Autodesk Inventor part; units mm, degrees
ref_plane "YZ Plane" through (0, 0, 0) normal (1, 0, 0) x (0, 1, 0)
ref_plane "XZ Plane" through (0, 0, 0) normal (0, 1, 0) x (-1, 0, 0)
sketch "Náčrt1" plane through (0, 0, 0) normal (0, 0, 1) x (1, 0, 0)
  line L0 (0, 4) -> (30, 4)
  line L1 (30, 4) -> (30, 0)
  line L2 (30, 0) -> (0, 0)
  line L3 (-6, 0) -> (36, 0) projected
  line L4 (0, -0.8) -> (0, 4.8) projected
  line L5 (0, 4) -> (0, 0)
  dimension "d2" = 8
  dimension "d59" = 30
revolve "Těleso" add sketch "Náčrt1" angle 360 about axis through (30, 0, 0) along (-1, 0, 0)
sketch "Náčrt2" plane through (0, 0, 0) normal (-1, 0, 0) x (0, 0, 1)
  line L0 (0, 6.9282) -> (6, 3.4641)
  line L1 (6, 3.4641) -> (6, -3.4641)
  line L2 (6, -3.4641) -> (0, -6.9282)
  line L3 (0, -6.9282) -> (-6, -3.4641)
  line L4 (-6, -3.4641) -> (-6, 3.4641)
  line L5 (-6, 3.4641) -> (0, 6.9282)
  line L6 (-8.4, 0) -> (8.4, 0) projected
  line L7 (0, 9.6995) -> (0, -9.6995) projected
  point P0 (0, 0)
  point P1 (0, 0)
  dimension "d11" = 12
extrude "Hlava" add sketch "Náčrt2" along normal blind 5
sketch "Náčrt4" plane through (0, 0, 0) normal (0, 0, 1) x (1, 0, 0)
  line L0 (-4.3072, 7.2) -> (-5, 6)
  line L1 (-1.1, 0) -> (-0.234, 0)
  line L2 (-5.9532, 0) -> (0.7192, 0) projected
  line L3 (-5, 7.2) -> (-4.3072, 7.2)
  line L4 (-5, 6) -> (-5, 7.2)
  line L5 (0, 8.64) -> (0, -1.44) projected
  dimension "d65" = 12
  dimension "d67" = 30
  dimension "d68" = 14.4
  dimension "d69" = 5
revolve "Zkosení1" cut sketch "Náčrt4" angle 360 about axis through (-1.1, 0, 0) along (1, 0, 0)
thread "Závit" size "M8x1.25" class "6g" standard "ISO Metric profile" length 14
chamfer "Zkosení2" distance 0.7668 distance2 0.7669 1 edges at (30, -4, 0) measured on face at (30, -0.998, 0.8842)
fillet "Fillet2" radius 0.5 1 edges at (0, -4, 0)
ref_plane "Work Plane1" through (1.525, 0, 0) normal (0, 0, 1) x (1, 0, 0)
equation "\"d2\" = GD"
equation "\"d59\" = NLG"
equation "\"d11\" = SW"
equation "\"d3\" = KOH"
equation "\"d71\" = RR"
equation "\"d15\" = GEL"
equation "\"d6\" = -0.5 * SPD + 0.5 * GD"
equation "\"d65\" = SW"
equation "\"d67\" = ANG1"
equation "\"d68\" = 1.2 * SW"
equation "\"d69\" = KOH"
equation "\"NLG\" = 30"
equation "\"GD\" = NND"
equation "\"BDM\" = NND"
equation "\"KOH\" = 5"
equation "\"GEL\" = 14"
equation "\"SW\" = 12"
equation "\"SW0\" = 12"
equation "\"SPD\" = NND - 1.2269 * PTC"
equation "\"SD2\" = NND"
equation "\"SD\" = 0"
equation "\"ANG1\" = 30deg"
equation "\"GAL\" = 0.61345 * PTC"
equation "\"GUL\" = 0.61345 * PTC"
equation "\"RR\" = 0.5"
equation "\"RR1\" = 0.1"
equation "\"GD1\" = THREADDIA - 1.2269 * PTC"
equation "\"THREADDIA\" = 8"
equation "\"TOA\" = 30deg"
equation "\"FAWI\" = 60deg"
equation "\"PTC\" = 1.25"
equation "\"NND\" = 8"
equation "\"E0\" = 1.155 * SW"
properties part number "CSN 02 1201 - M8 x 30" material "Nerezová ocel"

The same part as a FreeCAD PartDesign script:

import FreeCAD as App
import Part
import Sketcher
from FreeCAD import Vector
Q = App.Units.Quantity


def edges_at(feature, points):
    """Names of the edges that pass closest to the given points."""
    edges = feature.Shape.Edges
    near = lambda p: min(range(len(edges)), key=lambda i: edges[i].distToShape(Part.Vertex(*p))[0])
    return sorted({f"Edge{near(p) + 1}" for p in points})


def add_polygon(sketch, points):
    """Adds a closed chain of lines whose ends are joined by coincident constraints."""
    first, n = sketch.GeometryCount, len(points)
    for a, b in zip(points, points[1:] + points[:1]):
        sketch.addGeometry(Part.LineSegment(App.Vector(*a, 0), App.Vector(*b, 0)), False)
    for i in range(n):
        sketch.addConstraint(Sketcher.Constraint("Coincident", first + i, 2, first + (i + 1) % n, 1))

doc = App.newDocument("Part")
params = doc.addObject("Spreadsheet::Sheet", "Params")
for row, (alias, value) in enumerate([
    ("sketch1_width", "30 mm"),
    ("sketch1_height", "4 mm"),
    ("revolution_angle", "360 deg"),
    ("pad1_length", "5 mm"),
    ("sketch3_height", "1.2 mm"),
    ("groove_angle", "360 deg"),
    ("chamfer_size", "0.7668 mm"),
    ("chamfer_size2", "0.7669 mm"),
    ("fillet_radius", "0.5 mm"),
], start=1):
    params.set(f"A{row}", alias)
    params.set(f"B{row}", "=" + value)
    params.setAlias(f"B{row}", alias)

body = doc.addObject("PartDesign::Body", "Body")

# Sketch on XY plane
sketch1 = body.newObject("Sketcher::SketchObject", "Sketch")
sketch1.AttachmentSupport = (doc.getObject("XY_Plane"), [""])
sketch1.MapMode = "FlatFace"
add_polygon(sketch1, [(30, 4), (0, 4), (0, 0), (30, 0)])  # lines 0-3
sketch1.addConstraint([
    Sketcher.Constraint("Horizontal", 0),
    Sketcher.Constraint("Vertical", 1),
    Sketcher.Constraint("Horizontal", 2),
    Sketcher.Constraint("Vertical", 3),
    Sketcher.Constraint("Coincident", 1, 2, -1, 1),
    Sketcher.Constraint("DistanceX", 0, 2, 0, 1, Q("30 mm")),
    Sketcher.Constraint("DistanceY", 1, 2, 1, 1, Q("4 mm")),
])
sketch1.setExpression("Constraints[9]", "Params.sketch1_width")
sketch1.setExpression("Constraints[10]", "Params.sketch1_height")
revolution = body.newObject("PartDesign::Revolution", "Revolution")
revolution.Profile = sketch1
revolution.ReferenceAxis = (sketch1, ["H_Axis"])
revolution.setExpression("Angle", "Params.revolution_angle")

# Sketch on YZ plane
sketch2 = body.newObject("Sketcher::SketchObject", "Sketch001")
sketch2.AttachmentSupport = (doc.getObject("YZ_Plane"), [""])
sketch2.MapMode = "FlatFace"
add_polygon(sketch2, [(3, -6), (-3, -6), (-7, 0), (-3, 6), (3, 6), (7, 0)])  # lines 0-5
sketch2.addConstraint([
    Sketcher.Constraint("Horizontal", 0),
    Sketcher.Constraint("Horizontal", 3),
    Sketcher.Constraint("Symmetric", 0, 2, 3, 2, -1, 1),
    Sketcher.Constraint("Symmetric", 1, 2, 4, 2, -1, 1),
    Sketcher.Constraint("PointOnObject", 1, 2, -1),
    Sketcher.Constraint("Parallel", 2, 5),
    Sketcher.Constraint("Vertical", 0, 2, 2, 2),
    Sketcher.Constraint("DistanceY", 0, 2, 2, 2, Q("12 mm")),
    Sketcher.Constraint("Angle", 1, Q("120 deg")),
    Sketcher.Constraint("DistanceX", 0, 2, 0, 1, Q("6.9282 mm")),
])
pad1 = body.newObject("PartDesign::Pad", "Pad")
pad1.Profile = sketch2
pad1.setExpression("Length", "Params.pad1_length")
pad1.Reversed = True

# Sketch on XY plane
sketch3 = body.newObject("Sketcher::SketchObject", "Sketch002")
sketch3.AttachmentSupport = (doc.getObject("XY_Plane"), [""])
sketch3.MapMode = "FlatFace"
add_polygon(sketch3, [(-5, 6), (-4.3, 7.2), (-5, 7.2)])  # lines 0-2
sketch3.addConstraint([
    Sketcher.Constraint("Horizontal", 1),
    Sketcher.Constraint("Vertical", 2),
    Sketcher.Constraint("DistanceX", 1, 2, -1, 1, Q("5 mm")),
    Sketcher.Constraint("Angle", 0, Q("60.0007 deg")),
    Sketcher.Constraint("DistanceY", 2, 2, 2, 1, Q("1.2 mm")),
    Sketcher.Constraint("DistanceY", -1, 1, 2, 2, Q("6 mm")),
])
sketch3.setExpression("Constraints[7]", "Params.sketch3_height")
groove = body.newObject("PartDesign::Groove", "Groove")
groove.Profile = sketch3
groove.ReferenceAxis = (sketch3, ["H_Axis"])
groove.setExpression("Angle", "Params.groove_angle")
doc.recompute()

chamfer = body.newObject("PartDesign::Chamfer", "Chamfer")
chamfer.Base = (groove, edges_at(groove, [(30, -4, 0)]))
chamfer.ChamferType = "Two distances"
chamfer.setExpression("Size", "Params.chamfer_size")
chamfer.setExpression("Size2", "Params.chamfer_size2")
doc.recompute()

fillet = body.newObject("PartDesign::Fillet", "Fillet")
fillet.Base = (chamfer, edges_at(chamfer, [(0, -4, 0)]))
fillet.setExpression("Radius", "Params.fillet_radius")

doc.recompute()
